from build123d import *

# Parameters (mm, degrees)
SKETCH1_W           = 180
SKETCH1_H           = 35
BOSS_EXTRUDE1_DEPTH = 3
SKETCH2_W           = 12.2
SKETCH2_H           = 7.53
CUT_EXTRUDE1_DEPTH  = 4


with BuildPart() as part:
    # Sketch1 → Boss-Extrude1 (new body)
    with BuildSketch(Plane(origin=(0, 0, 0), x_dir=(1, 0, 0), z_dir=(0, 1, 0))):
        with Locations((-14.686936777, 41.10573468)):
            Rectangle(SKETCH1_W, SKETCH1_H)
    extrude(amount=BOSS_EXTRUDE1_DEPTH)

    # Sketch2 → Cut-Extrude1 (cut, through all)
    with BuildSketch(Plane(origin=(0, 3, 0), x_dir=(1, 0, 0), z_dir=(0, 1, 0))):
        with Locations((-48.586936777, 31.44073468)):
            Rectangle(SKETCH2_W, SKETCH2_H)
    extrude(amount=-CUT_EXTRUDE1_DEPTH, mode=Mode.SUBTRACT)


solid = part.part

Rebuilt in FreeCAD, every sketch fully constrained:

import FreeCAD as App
import Part
import Sketcher

V = App.Vector


def add_polygon(sketch, points):
    """Adds a closed chain of lines whose ends are joined by coincident constraints."""
    first, n = sketch.GeometryCount, len(points)
    for a, b in zip(points, points[1:] + points[:1]):
        sketch.addGeometry(Part.LineSegment(App.Vector(*a, 0), App.Vector(*b, 0)), False)
    for i in range(n):
        sketch.addConstraint(Sketcher.Constraint("Coincident", first + i, 2, first + (i + 1) % n, 1))

doc = App.newDocument("Part")
body = doc.addObject("PartDesign::Body", "Body")

sketch1 = doc.addObject("Sketcher::SketchObject", "Sketch")
body.addObject(sketch1)
sketch1.AttachmentSupport = (doc.XZ_Plane, [""])
sketch1.MapMode = "FlatFace"
add_polygon(sketch1, [(-105, -59), (-105, -24), (75, -24), (75, -59)])
sketch1.addConstraint([
    Sketcher.Constraint("Vertical", 0),
    Sketcher.Constraint("Horizontal", 1),
    Sketcher.Constraint("Vertical", 2),
    Sketcher.Constraint("Horizontal", 3),
    Sketcher.Constraint("DistanceX", 1, 1, 1, 2, 180.0),
    Sketcher.Constraint("DistanceY", 0, 1, 0, 2, 35.0),
    Sketcher.Constraint("DistanceX", 0, 2, -1, 1, 104.686937),
    Sketcher.Constraint("DistanceY", 0, 2, -1, 1, 23.605735),
])
pad1 = doc.addObject("PartDesign::Pad", "Pad")
body.addObject(pad1)
pad1.Profile = sketch1
pad1.Length = 3
pad1.Reversed = True

sketch2 = doc.addObject("Sketcher::SketchObject", "Sketch001")
body.addObject(sketch2)
sketch2.AttachmentSupport = (doc.XZ_Plane, [""])
sketch2.MapMode = "FlatFace"
sketch2.AttachmentOffset = App.Placement(V(0, 0, -3), App.Rotation())
add_polygon(sketch2, [(-55, -35), (-55, -28), (-42, -28), (-42, -35)])
sketch2.addConstraint([
    Sketcher.Constraint("Vertical", 0),
    Sketcher.Constraint("Horizontal", 1),
    Sketcher.Constraint("Vertical", 2),
    Sketcher.Constraint("Horizontal", 3),
    Sketcher.Constraint("DistanceX", 1, 1, 1, 2, 12.2),
    Sketcher.Constraint("DistanceY", 0, 1, 0, 2, 7.53),
    Sketcher.Constraint("DistanceX", 0, 2, -1, 1, 54.686937),
    Sketcher.Constraint("DistanceY", 0, 2, -1, 1, 27.675735),
])
pocket1 = doc.addObject("PartDesign::Pocket", "Pocket")
body.addObject(pocket1)
pocket1.Profile = sketch2
pocket1.Type = "ThroughAll"
pocket1.Reversed = True

doc.recompute()
